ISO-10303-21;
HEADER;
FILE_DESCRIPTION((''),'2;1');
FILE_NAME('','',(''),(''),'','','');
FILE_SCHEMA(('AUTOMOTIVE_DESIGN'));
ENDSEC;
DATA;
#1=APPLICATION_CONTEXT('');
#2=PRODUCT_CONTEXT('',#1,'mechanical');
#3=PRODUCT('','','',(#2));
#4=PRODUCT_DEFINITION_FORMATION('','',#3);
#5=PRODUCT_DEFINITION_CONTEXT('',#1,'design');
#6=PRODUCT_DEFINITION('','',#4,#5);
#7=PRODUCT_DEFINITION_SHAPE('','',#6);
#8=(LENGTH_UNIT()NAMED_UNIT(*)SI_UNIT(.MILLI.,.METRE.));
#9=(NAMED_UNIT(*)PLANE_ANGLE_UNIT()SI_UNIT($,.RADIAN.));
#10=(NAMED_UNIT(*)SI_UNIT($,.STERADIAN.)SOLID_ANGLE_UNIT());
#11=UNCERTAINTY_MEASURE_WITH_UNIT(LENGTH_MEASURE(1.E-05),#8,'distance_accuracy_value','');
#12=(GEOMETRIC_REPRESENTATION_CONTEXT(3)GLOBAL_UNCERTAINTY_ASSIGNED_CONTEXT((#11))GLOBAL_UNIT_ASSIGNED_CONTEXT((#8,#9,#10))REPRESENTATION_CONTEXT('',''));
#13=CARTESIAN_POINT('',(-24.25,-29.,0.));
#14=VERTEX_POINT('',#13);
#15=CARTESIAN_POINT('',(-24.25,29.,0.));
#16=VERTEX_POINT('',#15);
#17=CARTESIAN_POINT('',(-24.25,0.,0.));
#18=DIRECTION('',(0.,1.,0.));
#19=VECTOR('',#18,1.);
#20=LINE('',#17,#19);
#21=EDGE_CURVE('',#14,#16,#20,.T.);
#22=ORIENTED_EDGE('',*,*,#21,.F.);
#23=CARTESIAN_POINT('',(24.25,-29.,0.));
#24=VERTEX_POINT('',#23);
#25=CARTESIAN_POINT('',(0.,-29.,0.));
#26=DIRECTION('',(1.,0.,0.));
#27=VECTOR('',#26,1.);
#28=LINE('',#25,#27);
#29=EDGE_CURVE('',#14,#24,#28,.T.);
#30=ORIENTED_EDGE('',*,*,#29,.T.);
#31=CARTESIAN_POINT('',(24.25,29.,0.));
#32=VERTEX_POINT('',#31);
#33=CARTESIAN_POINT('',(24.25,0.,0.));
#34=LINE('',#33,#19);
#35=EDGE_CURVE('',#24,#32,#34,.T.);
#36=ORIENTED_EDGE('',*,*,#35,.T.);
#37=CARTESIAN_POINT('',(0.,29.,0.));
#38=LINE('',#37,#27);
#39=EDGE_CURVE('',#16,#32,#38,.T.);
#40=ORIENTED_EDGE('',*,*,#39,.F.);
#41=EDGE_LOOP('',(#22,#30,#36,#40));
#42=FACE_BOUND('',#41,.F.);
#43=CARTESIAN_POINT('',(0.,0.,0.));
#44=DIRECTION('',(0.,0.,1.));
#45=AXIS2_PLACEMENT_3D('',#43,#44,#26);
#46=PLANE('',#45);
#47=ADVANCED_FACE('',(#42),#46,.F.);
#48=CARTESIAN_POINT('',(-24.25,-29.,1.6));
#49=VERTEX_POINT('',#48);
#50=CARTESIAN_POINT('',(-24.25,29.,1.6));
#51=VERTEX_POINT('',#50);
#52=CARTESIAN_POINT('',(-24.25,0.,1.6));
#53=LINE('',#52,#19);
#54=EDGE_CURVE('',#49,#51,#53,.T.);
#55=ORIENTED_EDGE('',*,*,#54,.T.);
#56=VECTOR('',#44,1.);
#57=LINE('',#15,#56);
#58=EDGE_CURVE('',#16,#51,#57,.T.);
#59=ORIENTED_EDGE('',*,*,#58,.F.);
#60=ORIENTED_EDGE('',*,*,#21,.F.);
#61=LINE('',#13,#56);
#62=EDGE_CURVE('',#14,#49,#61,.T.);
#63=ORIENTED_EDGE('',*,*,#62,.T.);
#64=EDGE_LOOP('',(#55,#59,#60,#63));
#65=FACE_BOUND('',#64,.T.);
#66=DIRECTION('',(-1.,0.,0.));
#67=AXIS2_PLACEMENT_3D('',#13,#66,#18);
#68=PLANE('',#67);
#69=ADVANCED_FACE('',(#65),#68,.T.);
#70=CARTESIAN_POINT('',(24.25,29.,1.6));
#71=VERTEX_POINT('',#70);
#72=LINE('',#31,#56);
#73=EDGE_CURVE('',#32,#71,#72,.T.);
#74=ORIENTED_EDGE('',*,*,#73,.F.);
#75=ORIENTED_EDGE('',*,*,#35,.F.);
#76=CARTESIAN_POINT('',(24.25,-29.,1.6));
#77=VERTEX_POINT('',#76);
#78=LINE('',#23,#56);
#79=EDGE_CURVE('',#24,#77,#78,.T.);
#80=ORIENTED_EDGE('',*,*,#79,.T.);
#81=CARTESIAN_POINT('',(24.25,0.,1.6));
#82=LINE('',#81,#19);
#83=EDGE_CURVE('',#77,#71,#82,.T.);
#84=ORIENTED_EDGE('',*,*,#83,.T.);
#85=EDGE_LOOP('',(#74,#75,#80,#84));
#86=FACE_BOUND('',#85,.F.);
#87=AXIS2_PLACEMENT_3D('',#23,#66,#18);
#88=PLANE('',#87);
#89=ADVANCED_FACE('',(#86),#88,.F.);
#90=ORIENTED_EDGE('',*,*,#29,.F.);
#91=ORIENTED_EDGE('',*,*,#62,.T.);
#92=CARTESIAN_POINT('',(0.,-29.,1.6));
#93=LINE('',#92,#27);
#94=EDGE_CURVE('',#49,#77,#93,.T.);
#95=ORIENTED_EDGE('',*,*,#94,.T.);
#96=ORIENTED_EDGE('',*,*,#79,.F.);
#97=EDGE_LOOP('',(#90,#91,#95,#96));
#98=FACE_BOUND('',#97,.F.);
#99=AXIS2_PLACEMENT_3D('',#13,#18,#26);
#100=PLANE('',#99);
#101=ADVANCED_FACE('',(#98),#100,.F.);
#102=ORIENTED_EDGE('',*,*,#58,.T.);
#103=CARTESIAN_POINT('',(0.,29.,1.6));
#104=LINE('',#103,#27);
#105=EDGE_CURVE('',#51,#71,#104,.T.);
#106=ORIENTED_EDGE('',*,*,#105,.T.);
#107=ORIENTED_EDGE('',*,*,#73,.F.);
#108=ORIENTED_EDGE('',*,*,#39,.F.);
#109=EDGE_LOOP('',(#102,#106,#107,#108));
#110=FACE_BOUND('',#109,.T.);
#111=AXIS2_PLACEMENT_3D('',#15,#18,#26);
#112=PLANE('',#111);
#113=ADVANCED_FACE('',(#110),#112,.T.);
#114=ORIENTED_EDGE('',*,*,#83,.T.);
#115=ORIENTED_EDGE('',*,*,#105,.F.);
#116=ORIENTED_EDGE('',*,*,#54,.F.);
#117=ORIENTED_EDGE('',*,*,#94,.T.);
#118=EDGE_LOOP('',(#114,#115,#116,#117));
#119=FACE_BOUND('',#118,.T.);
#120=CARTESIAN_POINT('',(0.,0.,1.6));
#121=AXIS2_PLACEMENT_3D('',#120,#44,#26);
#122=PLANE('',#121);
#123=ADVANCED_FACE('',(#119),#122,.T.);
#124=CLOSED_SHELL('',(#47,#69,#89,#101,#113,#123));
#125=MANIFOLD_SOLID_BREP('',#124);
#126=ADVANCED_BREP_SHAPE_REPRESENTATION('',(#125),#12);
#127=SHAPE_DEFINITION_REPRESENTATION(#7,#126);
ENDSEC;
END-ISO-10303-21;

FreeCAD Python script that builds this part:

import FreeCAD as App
import Part
import Sketcher

V = App.Vector
Q = App.Units.Quantity

doc = App.newDocument("Part")
params = doc.addObject("Spreadsheet::Sheet", "Params")
for row, (alias, value) in enumerate([
    ("sketch1_height", "58 mm"),
    ("sketch1_width", "48.5 mm"),
    ("pad1_length", "1.6 mm"),
], start=1):
    params.set(f"A{row}", alias)
    params.set(f"B{row}", "=" + value)
    params.setAlias(f"B{row}", alias)

body = doc.addObject("PartDesign::Body", "Body")

# Sketch on XY plane
sketch1 = body.newObject("Sketcher::SketchObject", "Sketch")
sketch1.AttachmentSupport = (doc.getObject("XY_Plane"), [""])
sketch1.MapMode = "FlatFace"
sketch1.addGeometry([
    Part.LineSegment(V(-24, 29, 0), V(-24, -29, 0)),
    Part.LineSegment(V(-24, -29, 0), V(24, -29, 0)),
    Part.LineSegment(V(24, -29, 0), V(24, 29, 0)),
    Part.LineSegment(V(24, 29, 0), V(-24, 29, 0)),
], False)
sketch1.addConstraint([
    Sketcher.Constraint("Coincident", 0, 2, 1, 1),
    Sketcher.Constraint("Coincident", 1, 2, 2, 1),
    Sketcher.Constraint("Coincident", 2, 2, 3, 1),
    Sketcher.Constraint("Coincident", 3, 2, 0, 1),
    Sketcher.Constraint("Vertical", 0),
    Sketcher.Constraint("Horizontal", 1),
    Sketcher.Constraint("Vertical", 2),
    Sketcher.Constraint("Horizontal", 3),
    Sketcher.Constraint("Symmetric", 0, 2, 2, 2, -1, 1),
    Sketcher.Constraint("DistanceY", 0, 2, 0, 1, Q("58 mm")),
    Sketcher.Constraint("DistanceX", 1, 1, 1, 2, Q("48.5 mm")),
])
sketch1.setExpression("Constraints[9]", "Params.sketch1_height")
sketch1.setExpression("Constraints[10]", "Params.sketch1_width")
pad1 = body.newObject("PartDesign::Pad", "Pad")
pad1.Profile = sketch1
pad1.setExpression("Length", "Params.pad1_length")

doc.recompute()
